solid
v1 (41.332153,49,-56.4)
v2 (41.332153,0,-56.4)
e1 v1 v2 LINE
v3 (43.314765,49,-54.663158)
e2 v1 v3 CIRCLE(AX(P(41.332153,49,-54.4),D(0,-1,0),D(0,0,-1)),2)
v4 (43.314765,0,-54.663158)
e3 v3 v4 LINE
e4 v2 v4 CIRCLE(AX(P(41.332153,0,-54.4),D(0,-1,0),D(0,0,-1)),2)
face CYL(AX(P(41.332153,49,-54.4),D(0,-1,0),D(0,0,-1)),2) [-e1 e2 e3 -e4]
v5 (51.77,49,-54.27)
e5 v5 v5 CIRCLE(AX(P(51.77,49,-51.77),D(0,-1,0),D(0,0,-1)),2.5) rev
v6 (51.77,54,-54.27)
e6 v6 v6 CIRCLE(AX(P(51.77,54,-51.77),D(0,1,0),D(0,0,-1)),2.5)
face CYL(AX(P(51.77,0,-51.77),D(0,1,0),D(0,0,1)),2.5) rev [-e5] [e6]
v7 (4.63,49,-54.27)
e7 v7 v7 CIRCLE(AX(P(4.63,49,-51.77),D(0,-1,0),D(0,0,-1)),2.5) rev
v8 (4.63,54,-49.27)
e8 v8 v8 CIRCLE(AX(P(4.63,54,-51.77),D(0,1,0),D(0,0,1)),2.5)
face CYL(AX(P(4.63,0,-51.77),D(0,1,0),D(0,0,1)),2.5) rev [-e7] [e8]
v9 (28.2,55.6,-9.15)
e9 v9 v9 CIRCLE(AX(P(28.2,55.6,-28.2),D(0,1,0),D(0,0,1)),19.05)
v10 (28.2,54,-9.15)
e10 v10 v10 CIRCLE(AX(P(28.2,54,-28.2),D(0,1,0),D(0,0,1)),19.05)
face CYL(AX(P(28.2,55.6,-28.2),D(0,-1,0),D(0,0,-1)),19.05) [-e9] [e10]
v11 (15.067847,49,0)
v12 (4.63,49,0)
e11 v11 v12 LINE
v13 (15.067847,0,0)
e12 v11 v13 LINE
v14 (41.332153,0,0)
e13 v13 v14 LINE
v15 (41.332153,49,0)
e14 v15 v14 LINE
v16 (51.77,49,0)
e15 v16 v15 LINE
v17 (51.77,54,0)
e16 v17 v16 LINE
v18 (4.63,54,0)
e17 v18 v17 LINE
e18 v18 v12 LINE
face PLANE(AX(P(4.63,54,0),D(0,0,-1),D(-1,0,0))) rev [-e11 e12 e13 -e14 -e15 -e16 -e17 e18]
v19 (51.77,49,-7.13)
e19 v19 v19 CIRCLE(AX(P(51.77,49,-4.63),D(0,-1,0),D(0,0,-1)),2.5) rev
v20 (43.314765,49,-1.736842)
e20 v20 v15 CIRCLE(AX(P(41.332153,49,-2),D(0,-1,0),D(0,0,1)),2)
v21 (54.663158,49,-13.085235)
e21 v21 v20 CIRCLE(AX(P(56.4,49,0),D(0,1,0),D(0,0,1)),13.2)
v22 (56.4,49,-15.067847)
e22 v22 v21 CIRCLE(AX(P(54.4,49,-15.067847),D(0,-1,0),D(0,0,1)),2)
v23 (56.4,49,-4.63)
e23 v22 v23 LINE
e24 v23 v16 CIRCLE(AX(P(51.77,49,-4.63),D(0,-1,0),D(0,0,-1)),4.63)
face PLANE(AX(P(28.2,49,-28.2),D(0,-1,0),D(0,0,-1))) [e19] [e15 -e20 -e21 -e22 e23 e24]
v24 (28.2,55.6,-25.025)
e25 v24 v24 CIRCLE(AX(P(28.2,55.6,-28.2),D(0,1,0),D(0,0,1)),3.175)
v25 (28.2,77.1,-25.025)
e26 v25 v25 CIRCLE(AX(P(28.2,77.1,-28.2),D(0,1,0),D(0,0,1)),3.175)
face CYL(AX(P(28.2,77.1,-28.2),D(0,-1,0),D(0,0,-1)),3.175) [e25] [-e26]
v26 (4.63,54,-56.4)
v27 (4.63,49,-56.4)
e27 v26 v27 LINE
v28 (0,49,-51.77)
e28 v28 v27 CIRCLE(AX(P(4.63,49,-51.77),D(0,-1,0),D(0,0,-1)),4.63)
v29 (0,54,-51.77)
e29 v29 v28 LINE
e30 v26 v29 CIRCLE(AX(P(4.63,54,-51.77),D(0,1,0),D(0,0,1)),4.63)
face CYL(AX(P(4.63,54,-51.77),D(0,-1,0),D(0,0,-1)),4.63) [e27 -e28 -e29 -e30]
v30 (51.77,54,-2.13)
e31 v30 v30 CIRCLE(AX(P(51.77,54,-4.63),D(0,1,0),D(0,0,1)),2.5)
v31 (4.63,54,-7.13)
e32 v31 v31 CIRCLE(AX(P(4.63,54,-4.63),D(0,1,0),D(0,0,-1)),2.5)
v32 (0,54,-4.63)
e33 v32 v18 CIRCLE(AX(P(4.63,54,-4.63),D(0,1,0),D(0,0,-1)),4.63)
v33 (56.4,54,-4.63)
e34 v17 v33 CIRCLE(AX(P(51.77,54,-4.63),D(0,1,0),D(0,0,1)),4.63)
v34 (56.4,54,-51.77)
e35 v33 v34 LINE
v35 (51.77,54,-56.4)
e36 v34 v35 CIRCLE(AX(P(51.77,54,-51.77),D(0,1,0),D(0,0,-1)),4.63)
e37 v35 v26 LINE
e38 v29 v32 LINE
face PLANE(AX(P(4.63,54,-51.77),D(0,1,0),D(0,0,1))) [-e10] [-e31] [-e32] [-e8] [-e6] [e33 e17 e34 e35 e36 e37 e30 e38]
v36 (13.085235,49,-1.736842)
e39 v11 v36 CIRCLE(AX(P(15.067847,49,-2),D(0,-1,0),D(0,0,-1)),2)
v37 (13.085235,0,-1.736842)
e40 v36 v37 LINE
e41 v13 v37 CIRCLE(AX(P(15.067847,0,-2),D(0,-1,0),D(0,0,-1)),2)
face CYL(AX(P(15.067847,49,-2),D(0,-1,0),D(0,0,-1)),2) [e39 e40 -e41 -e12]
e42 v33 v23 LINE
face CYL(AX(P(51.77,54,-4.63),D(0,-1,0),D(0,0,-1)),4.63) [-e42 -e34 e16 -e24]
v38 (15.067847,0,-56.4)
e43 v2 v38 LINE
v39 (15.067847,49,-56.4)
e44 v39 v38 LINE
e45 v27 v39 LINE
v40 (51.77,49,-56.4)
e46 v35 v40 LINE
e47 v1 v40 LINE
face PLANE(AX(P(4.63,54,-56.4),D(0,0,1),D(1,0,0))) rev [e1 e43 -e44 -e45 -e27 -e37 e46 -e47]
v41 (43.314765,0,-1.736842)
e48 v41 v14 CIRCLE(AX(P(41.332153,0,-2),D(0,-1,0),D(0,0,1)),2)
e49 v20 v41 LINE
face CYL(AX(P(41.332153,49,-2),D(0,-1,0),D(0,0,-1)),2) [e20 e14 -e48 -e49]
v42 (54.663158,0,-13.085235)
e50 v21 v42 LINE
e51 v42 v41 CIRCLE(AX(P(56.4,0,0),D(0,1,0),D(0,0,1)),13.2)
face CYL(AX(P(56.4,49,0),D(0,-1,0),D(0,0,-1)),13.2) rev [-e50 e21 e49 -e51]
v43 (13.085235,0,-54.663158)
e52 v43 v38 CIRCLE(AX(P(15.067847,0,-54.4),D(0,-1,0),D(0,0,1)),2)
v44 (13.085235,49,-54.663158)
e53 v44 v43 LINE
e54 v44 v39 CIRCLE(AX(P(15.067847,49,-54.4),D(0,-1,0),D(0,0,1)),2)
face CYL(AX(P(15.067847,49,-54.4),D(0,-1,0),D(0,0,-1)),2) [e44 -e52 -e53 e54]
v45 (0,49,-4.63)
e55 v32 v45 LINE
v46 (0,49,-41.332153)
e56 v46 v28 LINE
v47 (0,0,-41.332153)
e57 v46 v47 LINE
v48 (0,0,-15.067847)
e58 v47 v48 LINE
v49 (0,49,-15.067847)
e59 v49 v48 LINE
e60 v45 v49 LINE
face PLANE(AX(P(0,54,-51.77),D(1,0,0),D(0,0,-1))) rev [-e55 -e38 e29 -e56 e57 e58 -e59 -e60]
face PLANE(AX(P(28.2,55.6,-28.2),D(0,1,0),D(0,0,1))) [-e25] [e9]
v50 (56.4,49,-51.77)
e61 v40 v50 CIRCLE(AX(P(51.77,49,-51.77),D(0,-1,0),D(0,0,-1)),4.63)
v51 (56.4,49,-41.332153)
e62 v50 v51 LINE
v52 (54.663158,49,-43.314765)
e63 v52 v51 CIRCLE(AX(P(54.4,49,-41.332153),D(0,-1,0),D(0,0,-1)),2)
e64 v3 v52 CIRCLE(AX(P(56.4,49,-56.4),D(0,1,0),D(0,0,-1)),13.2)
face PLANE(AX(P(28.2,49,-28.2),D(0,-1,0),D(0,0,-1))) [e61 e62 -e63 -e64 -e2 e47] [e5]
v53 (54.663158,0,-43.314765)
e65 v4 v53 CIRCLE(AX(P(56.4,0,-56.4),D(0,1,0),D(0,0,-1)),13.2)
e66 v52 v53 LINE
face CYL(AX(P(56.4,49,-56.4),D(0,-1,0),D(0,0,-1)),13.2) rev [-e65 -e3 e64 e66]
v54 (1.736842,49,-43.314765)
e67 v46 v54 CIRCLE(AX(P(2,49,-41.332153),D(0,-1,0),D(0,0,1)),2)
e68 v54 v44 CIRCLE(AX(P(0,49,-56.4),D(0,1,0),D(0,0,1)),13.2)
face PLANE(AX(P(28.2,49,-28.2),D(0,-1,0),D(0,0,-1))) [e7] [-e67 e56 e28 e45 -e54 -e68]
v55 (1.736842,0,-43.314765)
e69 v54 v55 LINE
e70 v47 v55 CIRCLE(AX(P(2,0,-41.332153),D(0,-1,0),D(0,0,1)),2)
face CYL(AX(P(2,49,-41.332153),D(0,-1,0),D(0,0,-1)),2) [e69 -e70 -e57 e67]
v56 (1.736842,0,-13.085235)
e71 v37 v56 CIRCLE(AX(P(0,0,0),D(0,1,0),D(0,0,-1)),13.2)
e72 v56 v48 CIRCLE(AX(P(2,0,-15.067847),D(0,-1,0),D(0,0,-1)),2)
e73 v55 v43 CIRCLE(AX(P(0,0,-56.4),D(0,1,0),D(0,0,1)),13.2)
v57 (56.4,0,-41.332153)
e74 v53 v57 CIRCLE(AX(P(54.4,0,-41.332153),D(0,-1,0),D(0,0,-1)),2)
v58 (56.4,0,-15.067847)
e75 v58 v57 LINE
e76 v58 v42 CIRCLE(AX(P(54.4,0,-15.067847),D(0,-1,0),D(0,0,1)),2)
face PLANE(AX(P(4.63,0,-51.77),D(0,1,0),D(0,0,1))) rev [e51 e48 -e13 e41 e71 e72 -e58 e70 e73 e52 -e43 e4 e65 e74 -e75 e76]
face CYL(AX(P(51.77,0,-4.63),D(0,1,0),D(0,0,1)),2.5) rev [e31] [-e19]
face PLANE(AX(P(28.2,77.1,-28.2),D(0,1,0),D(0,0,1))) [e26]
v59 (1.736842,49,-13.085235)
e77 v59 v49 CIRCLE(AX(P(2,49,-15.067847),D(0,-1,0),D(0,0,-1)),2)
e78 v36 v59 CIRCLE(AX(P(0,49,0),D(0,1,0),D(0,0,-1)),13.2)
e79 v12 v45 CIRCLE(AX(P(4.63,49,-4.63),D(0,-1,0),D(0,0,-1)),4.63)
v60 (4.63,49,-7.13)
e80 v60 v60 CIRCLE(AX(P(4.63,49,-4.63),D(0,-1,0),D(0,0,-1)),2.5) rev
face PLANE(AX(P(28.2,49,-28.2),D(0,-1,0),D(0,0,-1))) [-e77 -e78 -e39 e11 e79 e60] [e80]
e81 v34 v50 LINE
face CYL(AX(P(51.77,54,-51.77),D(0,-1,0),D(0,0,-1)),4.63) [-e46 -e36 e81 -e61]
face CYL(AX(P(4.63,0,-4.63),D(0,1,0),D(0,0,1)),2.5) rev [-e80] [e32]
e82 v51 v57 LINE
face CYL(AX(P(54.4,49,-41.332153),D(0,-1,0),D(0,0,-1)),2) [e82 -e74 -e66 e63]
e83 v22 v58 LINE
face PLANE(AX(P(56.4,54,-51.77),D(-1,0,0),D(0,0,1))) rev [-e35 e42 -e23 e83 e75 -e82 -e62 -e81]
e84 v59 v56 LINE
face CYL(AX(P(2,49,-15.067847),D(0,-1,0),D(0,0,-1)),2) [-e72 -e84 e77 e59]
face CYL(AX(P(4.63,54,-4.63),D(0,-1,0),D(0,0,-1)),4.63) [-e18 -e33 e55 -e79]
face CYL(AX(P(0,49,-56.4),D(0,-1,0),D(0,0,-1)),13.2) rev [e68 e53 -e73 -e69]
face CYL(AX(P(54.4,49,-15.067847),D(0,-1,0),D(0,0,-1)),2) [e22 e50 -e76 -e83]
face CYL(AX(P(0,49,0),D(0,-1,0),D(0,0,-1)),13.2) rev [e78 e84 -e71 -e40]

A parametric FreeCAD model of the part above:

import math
import FreeCAD as App
import Part
import Sketcher


def add_polygon(sketch, points):
    """Adds a closed chain of lines whose ends are joined by coincident constraints."""
    first, n = sketch.GeometryCount, len(points)
    for a, b in zip(points, points[1:] + points[:1]):
        sketch.addGeometry(Part.LineSegment(App.Vector(*a, 0), App.Vector(*b, 0)), False)
    for i in range(n):
        sketch.addConstraint(Sketcher.Constraint("Coincident", first + i, 2, first + (i + 1) % n, 1))

doc = App.newDocument("Part")
body = doc.addObject("PartDesign::Body", "Body")

# Sketch on XZ plane
sketch1 = doc.addObject("Sketcher::SketchObject", "Sketch")
body.addObject(sketch1)
sketch1.AttachmentSupport = (doc.XZ_Plane, [""])
sketch1.MapMode = "FlatFace"
sketch1.addGeometry(Part.LineSegment(App.Vector(0, -51.77, 0), App.Vector(0, -4.63, 0)), False)
sketch1.addGeometry(Part.ArcOfCircle(Part.Circle(App.Vector(4.63, -4.63, 0), App.Vector(0, 0, 1), 4.63), math.radians(90), math.radians(180)), False)
sketch1.addGeometry(Part.LineSegment(App.Vector(4.63, 0, 0), App.Vector(51.77, 0, 0)), False)
sketch1.addGeometry(Part.ArcOfCircle(Part.Circle(App.Vector(51.77, -4.63, 0), App.Vector(0, 0, 1), 4.63), math.radians(0), math.radians(90)), False)
sketch1.addGeometry(Part.LineSegment(App.Vector(56.4, -4.63, 0), App.Vector(56.4, -51.77, 0)), False)
sketch1.addGeometry(Part.ArcOfCircle(Part.Circle(App.Vector(51.77, -51.77, 0), App.Vector(0, 0, 1), 4.63), math.radians(-90), math.radians(0)), False)
sketch1.addGeometry(Part.LineSegment(App.Vector(51.77, -56.4, 0), App.Vector(4.63, -56.4, 0)), False)
sketch1.addGeometry(Part.ArcOfCircle(Part.Circle(App.Vector(4.63, -51.77, 0), App.Vector(0, 0, 1), 4.63), math.radians(180), math.radians(270)), False)
sketch1.addConstraint(Sketcher.Constraint("Tangent", 0, 2, 1, 2))
sketch1.addConstraint(Sketcher.Constraint("Tangent", 1, 1, 2, 1))
sketch1.addConstraint(Sketcher.Constraint("Tangent", 2, 2, 3, 2))
sketch1.addConstraint(Sketcher.Constraint("Tangent", 3, 1, 4, 1))
sketch1.addConstraint(Sketcher.Constraint("Tangent", 4, 2, 5, 2))
sketch1.addConstraint(Sketcher.Constraint("Tangent", 5, 1, 6, 1))
sketch1.addConstraint(Sketcher.Constraint("Tangent", 6, 2, 7, 2))
sketch1.addConstraint(Sketcher.Constraint("Tangent", 7, 1, 0, 1))
sketch1.addConstraint(Sketcher.Constraint("Vertical", 0))
sketch1.addConstraint(Sketcher.Constraint("Horizontal", 2))
sketch1.addConstraint(Sketcher.Constraint("Vertical", 4))
sketch1.addConstraint(Sketcher.Constraint("Horizontal", 6))
sketch1.addConstraint(Sketcher.Constraint("Equal", 1, 3))
sketch1.addConstraint(Sketcher.Constraint("Equal", 3, 5))
sketch1.addConstraint(Sketcher.Constraint("Equal", 5, 7))
sketch1.addConstraint(Sketcher.Constraint("PointOnObject", 0, 2, -2))
sketch1.addConstraint(Sketcher.Constraint("PointOnObject", 1, 1, -1))
sketch1.addConstraint(Sketcher.Constraint("Equal", 6, 0))
sketch1.addConstraint(Sketcher.Constraint("Radius", 1, 4.63))
sketch1.addConstraint(Sketcher.Constraint("DistanceX", 2, 1, 2, 2, 47.14))
pad1 = doc.addObject("PartDesign::Pad", "Pad")
body.addObject(pad1)
pad1.Profile = sketch1
pad1.Length = 54
pad1.Reversed = True

# Sketch on XZ plane
sketch2 = doc.addObject("Sketcher::SketchObject", "Sketch001")
body.addObject(sketch2)
sketch2.AttachmentSupport = (doc.XZ_Plane, [""])
sketch2.MapMode = "FlatFace"
sketch2.AttachmentOffset = App.Placement(App.Vector(0, 0, -54), App.Rotation())
sketch2.addGeometry(Part.Circle(App.Vector(4.63, -51.77, 0), App.Vector(0, 0, 1), 2.5), False)
sketch2.addGeometry(Part.Circle(App.Vector(51.77, -51.77, 0), App.Vector(0, 0, 1), 2.5), False)
sketch2.addGeometry(Part.Circle(App.Vector(51.77, -4.63, 0), App.Vector(0, 0, 1), 2.5), False)
sketch2.addGeometry(Part.Circle(App.Vector(4.63, -4.63, 0), App.Vector(0, 0, 1), 2.5), False)
sketch2.addConstraint(Sketcher.Constraint("Equal", 0, 1))
sketch2.addConstraint(Sketcher.Constraint("Equal", 1, 2))
sketch2.addConstraint(Sketcher.Constraint("Equal", 2, 3))
sketch2.addConstraint(Sketcher.Constraint("Horizontal", 0, 3, 1, 3))
sketch2.addConstraint(Sketcher.Constraint("Horizontal", 2, 3, 3, 3))
sketch2.addConstraint(Sketcher.Constraint("Vertical", 1, 3, 2, 3))
sketch2.addConstraint(Sketcher.Constraint("Vertical", 0, 3, 3, 3))
sketch2.addConstraint(Sketcher.Constraint("Diameter", 0, 5.0))
sketch2.addConstraint(Sketcher.Constraint("DistanceX", -1, 1, 0, 3, 4.63))
sketch2.addConstraint(Sketcher.Constraint("DistanceY", 0, 3, -1, 1, 51.77))
sketch2.addConstraint(Sketcher.Constraint("DistanceX", -1, 1, 1, 3, 51.77))
sketch2.addConstraint(Sketcher.Constraint("DistanceY", 2, 3, -1, 1, 4.63))
pocket1 = doc.addObject("PartDesign::Pocket", "Pocket")
body.addObject(pocket1)
pocket1.Profile = sketch2
pocket1.Length = 54
pocket1.Reversed = True

# Sketch on XZ plane
sketch3 = doc.addObject("Sketcher::SketchObject", "Sketch002")
body.addObject(sketch3)
sketch3.AttachmentSupport = (doc.XZ_Plane, [""])
sketch3.MapMode = "FlatFace"
add_polygon(sketch3, [(-10.632, 10.632), (-10.632, -67.032), (67.032, -67.032), (67.032, 10.632)])  # lines 0-3
sketch3.addGeometry(Part.LineSegment(App.Vector(41.332153, -56.4, 0), App.Vector(15.067847, -56.4, 0)), False)  # 4
sketch3.addGeometry(Part.ArcOfCircle(Part.Circle(App.Vector(15.067847, -54.4, 0), App.Vector(0, 0, 1), 2), math.radians(-172.439157), math.radians(-90)), False)  # 5
sketch3.addGeometry(Part.ArcOfCircle(Part.Circle(App.Vector(0, -56.4, 0), App.Vector(0, 0, 1), 13.2), math.radians(7.560843), math.radians(82.439157)), False)  # 6
sketch3.addGeometry(Part.ArcOfCircle(Part.Circle(App.Vector(2, -41.332153, 0), App.Vector(0, 0, 1), 2), math.radians(-180), math.radians(-97.560843)), False)  # 7
sketch3.addGeometry(Part.LineSegment(App.Vector(0, -41.332153, 0), App.Vector(0, -15.067847, 0)), False)  # 8
sketch3.addGeometry(Part.ArcOfCircle(Part.Circle(App.Vector(2, -15.067847, 0), App.Vector(0, 0, 1), 2), math.radians(97.560843), math.radians(180)), False)  # 9
sketch3.addGeometry(Part.ArcOfCircle(Part.Circle(App.Vector(0, 0, 0), App.Vector(0, 0, 1), 13.2), math.radians(-82.439157), math.radians(-7.560843)), False)  # 10
sketch3.addGeometry(Part.ArcOfCircle(Part.Circle(App.Vector(15.067847, -2, 0), App.Vector(0, 0, 1), 2), math.radians(90), math.radians(172.439157)), False)  # 11
sketch3.addGeometry(Part.LineSegment(App.Vector(15.067847, 0, 0), App.Vector(41.332153, 0, 0)), False)  # 12
sketch3.addGeometry(Part.ArcOfCircle(Part.Circle(App.Vector(41.332153, -2, 0), App.Vector(0, 0, 1), 2), math.radians(7.560843), math.radians(90)), False)  # 13
sketch3.addGeometry(Part.ArcOfCircle(Part.Circle(App.Vector(56.4, 0, 0), App.Vector(0, 0, 1), 13.2), math.radians(-172.439157), math.radians(-97.560843)), False)  # 14
sketch3.addGeometry(Part.ArcOfCircle(Part.Circle(App.Vector(54.4, -15.067847, 0), App.Vector(0, 0, 1), 2), math.radians(0), math.radians(82.439157)), False)  # 15
sketch3.addGeometry(Part.LineSegment(App.Vector(56.4, -15.067847, 0), App.Vector(56.4, -41.332153, 0)), False)  # 16
sketch3.addGeometry(Part.ArcOfCircle(Part.Circle(App.Vector(54.4, -41.332153, 0), App.Vector(0, 0, 1), 2), math.radians(-82.439157), math.radians(0)), False)  # 17
sketch3.addGeometry(Part.ArcOfCircle(Part.Circle(App.Vector(56.4, -56.4, 0), App.Vector(0, 0, 1), 13.2), math.radians(97.560843), math.radians(172.439157)), False)  # 18
sketch3.addGeometry(Part.ArcOfCircle(Part.Circle(App.Vector(41.332153, -54.4, 0), App.Vector(0, 0, 1), 2), math.radians(-90), math.radians(-7.560843)), False)  # 19
sketch3.addConstraint(Sketcher.Constraint("Tangent", 4, 2, 5, 2))
sketch3.addConstraint(Sketcher.Constraint("Tangent", 5, 1, 6, 1))
sketch3.addConstraint(Sketcher.Constraint("Tangent", 6, 2, 7, 2))
sketch3.addConstraint(Sketcher.Constraint("Tangent", 7, 1, 8, 1))
sketch3.addConstraint(Sketcher.Constraint("Tangent", 8, 2, 9, 2))
sketch3.addConstraint(Sketcher.Constraint("Tangent", 9, 1, 10, 1))
sketch3.addConstraint(Sketcher.Constraint("Tangent", 10, 2, 11, 2))
sketch3.addConstraint(Sketcher.Constraint("Tangent", 11, 1, 12, 1))
sketch3.addConstraint(Sketcher.Constraint("Tangent", 12, 2, 13, 2))
sketch3.addConstraint(Sketcher.Constraint("Tangent", 13, 1, 14, 1))
sketch3.addConstraint(Sketcher.Constraint("Tangent", 14, 2, 15, 2))
sketch3.addConstraint(Sketcher.Constraint("Tangent", 15, 1, 16, 1))
sketch3.addConstraint(Sketcher.Constraint("Tangent", 16, 2, 17, 2))
sketch3.addConstraint(Sketcher.Constraint("Tangent", 17, 1, 18, 1))
sketch3.addConstraint(Sketcher.Constraint("Tangent", 18, 2, 19, 2))
sketch3.addConstraint(Sketcher.Constraint("Tangent", 19, 1, 4, 1))
sketch3.addConstraint(Sketcher.Constraint("Vertical", 0))
sketch3.addConstraint(Sketcher.Constraint("Horizontal", 1))
sketch3.addConstraint(Sketcher.Constraint("Vertical", 2))
sketch3.addConstraint(Sketcher.Constraint("Horizontal", 3))
sketch3.addConstraint(Sketcher.Constraint("Horizontal", 4))
sketch3.addConstraint(Sketcher.Constraint("Vertical", 8))
sketch3.addConstraint(Sketcher.Constraint("Horizontal", 12))
sketch3.addConstraint(Sketcher.Constraint("Vertical", 16))
sketch3.addConstraint(Sketcher.Constraint("Coincident", 10, 3, -1, 1))
sketch3.addConstraint(Sketcher.Constraint("Equal", 5, 7))
sketch3.addConstraint(Sketcher.Constraint("Equal", 7, 9))
sketch3.addConstraint(Sketcher.Constraint("Equal", 6, 10))
sketch3.addConstraint(Sketcher.Constraint("Equal", 9, 11))
sketch3.addConstraint(Sketcher.Constraint("Equal", 11, 13))
sketch3.addConstraint(Sketcher.Constraint("Equal", 10, 14))
sketch3.addConstraint(Sketcher.Constraint("Equal", 13, 15))
sketch3.addConstraint(Sketcher.Constraint("Equal", 15, 17))
sketch3.addConstraint(Sketcher.Constraint("Equal", 14, 18))
sketch3.addConstraint(Sketcher.Constraint("Equal", 17, 19))
sketch3.addConstraint(Sketcher.Constraint("PointOnObject", 6, 3, -2))
sketch3.addConstraint(Sketcher.Constraint("PointOnObject", 14, 3, -1))
sketch3.addConstraint(Sketcher.Constraint("PointOnObject", 7, 1, -2))
sketch3.addConstraint(Sketcher.Constraint("PointOnObject", 11, 1, -1))
sketch3.addConstraint(Sketcher.Constraint("Horizontal", 9, 3, 15, 3))
sketch3.addConstraint(Sketcher.Constraint("Horizontal", 7, 3, 17, 3))
sketch3.addConstraint(Sketcher.Constraint("Horizontal", 6, 3, 18, 3))
sketch3.addConstraint(Sketcher.Constraint("Horizontal", 18, 3, 4, 2))
sketch3.addConstraint(Sketcher.Constraint("Equal", 3, 0))
sketch3.addConstraint(Sketcher.Constraint("Equal", 12, 8))
sketch3.addConstraint(Sketcher.Constraint("Radius", 5, 2.0))
sketch3.addConstraint(Sketcher.Constraint("Radius", 6, 13.2))
sketch3.addConstraint(Sketcher.Constraint("DistanceY", 5, 3, -1, 1, 54.4))
sketch3.addConstraint(Sketcher.Constraint("DistanceX", 1, 1, 1, 2, 77.664))
sketch3.addConstraint(Sketcher.Constraint("DistanceX", 0, 2, -1, 1, 10.632))
sketch3.addConstraint(Sketcher.Constraint("DistanceY", 0, 2, -1, 1, 67.032))
pocket2 = doc.addObject("PartDesign::Pocket", "Pocket001")
body.addObject(pocket2)
pocket2.Profile = sketch3
pocket2.Length = 49

# Sketch on XZ plane
sketch4 = doc.addObject("Sketcher::SketchObject", "Sketch003")
body.addObject(sketch4)
sketch4.AttachmentSupport = (doc.XZ_Plane, [""])
sketch4.MapMode = "FlatFace"
sketch4.AttachmentOffset = App.Placement(App.Vector(0, 0, -54), App.Rotation())
sketch4.addGeometry(Part.Circle(App.Vector(28.2, -28.2, 0), App.Vector(0, 0, 1), 19.05), False)
sketch4.addConstraint(Sketcher.Constraint("Diameter", 0, 38.1))
sketch4.addConstraint(Sketcher.Constraint("DistanceX", -1, 1, 0, 3, 28.2))
sketch4.addConstraint(Sketcher.Constraint("DistanceY", 0, 3, -1, 1, 28.2))
pad2 = doc.addObject("PartDesign::Pad", "Pad001")
body.addObject(pad2)
pad2.Profile = sketch4
pad2.Length = 1.6
pad2.Reversed = True

# Sketch on XZ plane
sketch5 = doc.addObject("Sketcher::SketchObject", "Sketch004")
body.addObject(sketch5)
sketch5.AttachmentSupport = (doc.XZ_Plane, [""])
sketch5.MapMode = "FlatFace"
sketch5.AttachmentOffset = App.Placement(App.Vector(0, 0, -55.6), App.Rotation())
sketch5.addGeometry(Part.Circle(App.Vector(28.2, -28.2, 0), App.Vector(0, 0, 1), 3.175), False)
sketch5.addConstraint(Sketcher.Constraint("Diameter", 0, 6.35))
sketch5.addConstraint(Sketcher.Constraint("DistanceX", -1, 1, 0, 3, 28.2))
sketch5.addConstraint(Sketcher.Constraint("DistanceY", 0, 3, -1, 1, 28.2))
pad3 = doc.addObject("PartDesign::Pad", "Pad002")
body.addObject(pad3)
pad3.Profile = sketch5
pad3.Length = 21.5
pad3.Reversed = True

doc.recompute()
